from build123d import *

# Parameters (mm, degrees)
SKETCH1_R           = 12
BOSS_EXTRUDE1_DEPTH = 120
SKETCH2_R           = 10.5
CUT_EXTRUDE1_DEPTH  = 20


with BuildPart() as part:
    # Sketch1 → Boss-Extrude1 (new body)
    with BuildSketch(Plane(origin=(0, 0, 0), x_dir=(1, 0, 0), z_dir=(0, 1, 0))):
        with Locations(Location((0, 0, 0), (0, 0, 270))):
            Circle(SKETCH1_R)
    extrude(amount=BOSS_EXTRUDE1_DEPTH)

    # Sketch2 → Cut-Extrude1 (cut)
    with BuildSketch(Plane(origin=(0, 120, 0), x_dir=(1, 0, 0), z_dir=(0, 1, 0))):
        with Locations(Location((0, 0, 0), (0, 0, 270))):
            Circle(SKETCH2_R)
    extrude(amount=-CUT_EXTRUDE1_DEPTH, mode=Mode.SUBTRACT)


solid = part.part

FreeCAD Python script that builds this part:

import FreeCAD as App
import Part
import Sketcher
from FreeCAD import Vector

doc = App.newDocument("Part")
body = doc.addObject("PartDesign::Body", "Body")

sketch1 = body.newObject("Sketcher::SketchObject", "Sketch")
sketch1.AttachmentSupport = (doc.getObject("XZ_Plane"), [""])
sketch1.MapMode = "FlatFace"
sketch1.addGeometry(Part.Circle(Vector(0, 0, 0), Vector(0, 0, 1), 12), False)
sketch1.addConstraint(Sketcher.Constraint("Coincident", 0, 3, -1, 1))
sketch1.addConstraint(Sketcher.Constraint("Diameter", 0, 24.0))
pad1 = body.newObject("PartDesign::Pad", "Pad")
pad1.Profile = sketch1
pad1.Length = 120
pad1.Reversed = True

sketch2 = body.newObject("Sketcher::SketchObject", "Sketch001")
sketch2.AttachmentSupport = (doc.getObject("XZ_Plane"), [""])
sketch2.MapMode = "FlatFace"
sketch2.AttachmentOffset = App.Placement(Vector(0, 0, -120), App.Rotation())
sketch2.addGeometry(Part.Circle(Vector(0, 0, 0), Vector(0, 0, 1), 10.5), False)
sketch2.addConstraint(Sketcher.Constraint("Coincident", 0, 3, -1, 1))
sketch2.addConstraint(Sketcher.Constraint("Diameter", 0, 21.0))
pocket1 = body.newObject("PartDesign::Pocket", "Pocket")
pocket1.Profile = sketch2
pocket1.Length = 20
pocket1.Reversed = True

doc.recompute()
